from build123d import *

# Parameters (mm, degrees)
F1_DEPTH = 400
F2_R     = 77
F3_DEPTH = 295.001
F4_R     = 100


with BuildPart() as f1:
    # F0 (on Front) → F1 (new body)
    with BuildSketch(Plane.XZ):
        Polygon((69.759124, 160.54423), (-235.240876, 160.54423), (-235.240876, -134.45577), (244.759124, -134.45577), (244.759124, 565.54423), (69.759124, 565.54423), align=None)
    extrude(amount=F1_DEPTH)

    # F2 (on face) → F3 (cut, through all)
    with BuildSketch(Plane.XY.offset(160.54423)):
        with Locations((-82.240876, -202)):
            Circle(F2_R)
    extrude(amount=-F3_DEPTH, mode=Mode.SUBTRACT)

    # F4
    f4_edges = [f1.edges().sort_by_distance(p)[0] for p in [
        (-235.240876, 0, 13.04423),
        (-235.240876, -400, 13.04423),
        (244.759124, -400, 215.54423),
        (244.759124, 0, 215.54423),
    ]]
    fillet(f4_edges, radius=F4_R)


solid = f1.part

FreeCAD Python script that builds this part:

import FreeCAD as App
import Part
import Sketcher
from FreeCAD import Vector
Q = App.Units.Quantity


def edges_at(feature, points):
    """Names of the edges that pass closest to the given points."""
    edges = feature.Shape.Edges
    near = lambda p: min(range(len(edges)), key=lambda i: edges[i].distToShape(Part.Vertex(*p))[0])
    return sorted({f"Edge{near(p) + 1}" for p in points})

doc = App.newDocument("Part")
body = doc.addObject("PartDesign::Body", "Body")

sketch1 = body.newObject("Sketcher::SketchObject", "Sketch")
sketch1.AttachmentSupport = (doc.getObject("XZ_Plane"), [""])
sketch1.MapMode = "FlatFace"
sketch1.addGeometry([
    Part.LineSegment(Vector(69.759124, 160.54423, 0), Vector(-235.240876, 160.54423, 0)),
    Part.LineSegment(Vector(-235.240876, 160.54423, 0), Vector(-235.240876, -134.45577, 0)),
    Part.LineSegment(Vector(-235.240876, -134.45577, 0), Vector(244.759124, -134.45577, 0)),
    Part.LineSegment(Vector(244.759124, -134.45577, 0), Vector(244.759124, 565.54423, 0)),
    Part.LineSegment(Vector(244.759124, 565.54423, 0), Vector(69.759124, 565.54423, 0)),
    Part.LineSegment(Vector(69.759124, 565.54423, 0), Vector(69.759124, 160.54423, 0)),
], False)
sketch1.addConstraint([
    Sketcher.Constraint("Coincident", 0, 2, 1, 1),
    Sketcher.Constraint("Coincident", 1, 2, 2, 1),
    Sketcher.Constraint("Coincident", 2, 2, 3, 1),
    Sketcher.Constraint("Coincident", 3, 2, 4, 1),
    Sketcher.Constraint("Coincident", 4, 2, 5, 1),
    Sketcher.Constraint("Coincident", 5, 2, 0, 1),
    Sketcher.Constraint("Horizontal", 0),
    Sketcher.Constraint("Vertical", 1),
    Sketcher.Constraint("Horizontal", 2),
    Sketcher.Constraint("Vertical", 3),
    Sketcher.Constraint("Horizontal", 4),
    Sketcher.Constraint("Vertical", 5),
    Sketcher.Constraint("DistanceX", 0, 2, 0, 1, Q("305 mm")),
    Sketcher.Constraint("DistanceX", 2, 1, 2, 2, Q("480 mm")),
    Sketcher.Constraint("DistanceY", 1, 2, 1, 1, Q("295 mm")),
    Sketcher.Constraint("DistanceY", 3, 1, 3, 2, Q("700 mm")),
    Sketcher.Constraint("DistanceY", -1, 1, 0, 2, Q("160.54423 mm")),
    Sketcher.Constraint("DistanceX", 0, 2, -1, 1, Q("235.240876 mm")),
])
pad1 = body.newObject("PartDesign::Pad", "Pad")
pad1.Profile = sketch1
pad1.Length = 400

sketch2 = body.newObject("Sketcher::SketchObject", "Sketch001")
sketch2.AttachmentSupport = (doc.getObject("XY_Plane"), [""])
sketch2.MapMode = "FlatFace"
sketch2.AttachmentOffset = App.Placement(Vector(0, 0, 160.54423), App.Rotation())
sketch2.addGeometry(Part.Circle(Vector(-82.240876, -202, 0), Vector(0, 0, 1), 77), False)
sketch2.addConstraint([
    Sketcher.Constraint("Diameter", 0, Q("154 mm")),
    Sketcher.Constraint("DistanceY", 0, 3, -1, 1, Q("202 mm")),
    Sketcher.Constraint("DistanceX", 0, 3, -1, 1, Q("82.240876 mm")),
])
pocket1 = body.newObject("PartDesign::Pocket", "Pocket")
pocket1.Profile = sketch2
pocket1.Type = "ThroughAll"
doc.recompute()

fillet = body.newObject("PartDesign::Fillet", "Fillet")
fillet.Base = (pocket1, edges_at(pocket1, [
    (-235.241, 0, 13.044),
    (-235.241, -400, 13.044),
    (244.759, -400, 215.544),
    (244.759, 0, 215.544),
]))
fillet.Radius = 100

doc.recompute()
